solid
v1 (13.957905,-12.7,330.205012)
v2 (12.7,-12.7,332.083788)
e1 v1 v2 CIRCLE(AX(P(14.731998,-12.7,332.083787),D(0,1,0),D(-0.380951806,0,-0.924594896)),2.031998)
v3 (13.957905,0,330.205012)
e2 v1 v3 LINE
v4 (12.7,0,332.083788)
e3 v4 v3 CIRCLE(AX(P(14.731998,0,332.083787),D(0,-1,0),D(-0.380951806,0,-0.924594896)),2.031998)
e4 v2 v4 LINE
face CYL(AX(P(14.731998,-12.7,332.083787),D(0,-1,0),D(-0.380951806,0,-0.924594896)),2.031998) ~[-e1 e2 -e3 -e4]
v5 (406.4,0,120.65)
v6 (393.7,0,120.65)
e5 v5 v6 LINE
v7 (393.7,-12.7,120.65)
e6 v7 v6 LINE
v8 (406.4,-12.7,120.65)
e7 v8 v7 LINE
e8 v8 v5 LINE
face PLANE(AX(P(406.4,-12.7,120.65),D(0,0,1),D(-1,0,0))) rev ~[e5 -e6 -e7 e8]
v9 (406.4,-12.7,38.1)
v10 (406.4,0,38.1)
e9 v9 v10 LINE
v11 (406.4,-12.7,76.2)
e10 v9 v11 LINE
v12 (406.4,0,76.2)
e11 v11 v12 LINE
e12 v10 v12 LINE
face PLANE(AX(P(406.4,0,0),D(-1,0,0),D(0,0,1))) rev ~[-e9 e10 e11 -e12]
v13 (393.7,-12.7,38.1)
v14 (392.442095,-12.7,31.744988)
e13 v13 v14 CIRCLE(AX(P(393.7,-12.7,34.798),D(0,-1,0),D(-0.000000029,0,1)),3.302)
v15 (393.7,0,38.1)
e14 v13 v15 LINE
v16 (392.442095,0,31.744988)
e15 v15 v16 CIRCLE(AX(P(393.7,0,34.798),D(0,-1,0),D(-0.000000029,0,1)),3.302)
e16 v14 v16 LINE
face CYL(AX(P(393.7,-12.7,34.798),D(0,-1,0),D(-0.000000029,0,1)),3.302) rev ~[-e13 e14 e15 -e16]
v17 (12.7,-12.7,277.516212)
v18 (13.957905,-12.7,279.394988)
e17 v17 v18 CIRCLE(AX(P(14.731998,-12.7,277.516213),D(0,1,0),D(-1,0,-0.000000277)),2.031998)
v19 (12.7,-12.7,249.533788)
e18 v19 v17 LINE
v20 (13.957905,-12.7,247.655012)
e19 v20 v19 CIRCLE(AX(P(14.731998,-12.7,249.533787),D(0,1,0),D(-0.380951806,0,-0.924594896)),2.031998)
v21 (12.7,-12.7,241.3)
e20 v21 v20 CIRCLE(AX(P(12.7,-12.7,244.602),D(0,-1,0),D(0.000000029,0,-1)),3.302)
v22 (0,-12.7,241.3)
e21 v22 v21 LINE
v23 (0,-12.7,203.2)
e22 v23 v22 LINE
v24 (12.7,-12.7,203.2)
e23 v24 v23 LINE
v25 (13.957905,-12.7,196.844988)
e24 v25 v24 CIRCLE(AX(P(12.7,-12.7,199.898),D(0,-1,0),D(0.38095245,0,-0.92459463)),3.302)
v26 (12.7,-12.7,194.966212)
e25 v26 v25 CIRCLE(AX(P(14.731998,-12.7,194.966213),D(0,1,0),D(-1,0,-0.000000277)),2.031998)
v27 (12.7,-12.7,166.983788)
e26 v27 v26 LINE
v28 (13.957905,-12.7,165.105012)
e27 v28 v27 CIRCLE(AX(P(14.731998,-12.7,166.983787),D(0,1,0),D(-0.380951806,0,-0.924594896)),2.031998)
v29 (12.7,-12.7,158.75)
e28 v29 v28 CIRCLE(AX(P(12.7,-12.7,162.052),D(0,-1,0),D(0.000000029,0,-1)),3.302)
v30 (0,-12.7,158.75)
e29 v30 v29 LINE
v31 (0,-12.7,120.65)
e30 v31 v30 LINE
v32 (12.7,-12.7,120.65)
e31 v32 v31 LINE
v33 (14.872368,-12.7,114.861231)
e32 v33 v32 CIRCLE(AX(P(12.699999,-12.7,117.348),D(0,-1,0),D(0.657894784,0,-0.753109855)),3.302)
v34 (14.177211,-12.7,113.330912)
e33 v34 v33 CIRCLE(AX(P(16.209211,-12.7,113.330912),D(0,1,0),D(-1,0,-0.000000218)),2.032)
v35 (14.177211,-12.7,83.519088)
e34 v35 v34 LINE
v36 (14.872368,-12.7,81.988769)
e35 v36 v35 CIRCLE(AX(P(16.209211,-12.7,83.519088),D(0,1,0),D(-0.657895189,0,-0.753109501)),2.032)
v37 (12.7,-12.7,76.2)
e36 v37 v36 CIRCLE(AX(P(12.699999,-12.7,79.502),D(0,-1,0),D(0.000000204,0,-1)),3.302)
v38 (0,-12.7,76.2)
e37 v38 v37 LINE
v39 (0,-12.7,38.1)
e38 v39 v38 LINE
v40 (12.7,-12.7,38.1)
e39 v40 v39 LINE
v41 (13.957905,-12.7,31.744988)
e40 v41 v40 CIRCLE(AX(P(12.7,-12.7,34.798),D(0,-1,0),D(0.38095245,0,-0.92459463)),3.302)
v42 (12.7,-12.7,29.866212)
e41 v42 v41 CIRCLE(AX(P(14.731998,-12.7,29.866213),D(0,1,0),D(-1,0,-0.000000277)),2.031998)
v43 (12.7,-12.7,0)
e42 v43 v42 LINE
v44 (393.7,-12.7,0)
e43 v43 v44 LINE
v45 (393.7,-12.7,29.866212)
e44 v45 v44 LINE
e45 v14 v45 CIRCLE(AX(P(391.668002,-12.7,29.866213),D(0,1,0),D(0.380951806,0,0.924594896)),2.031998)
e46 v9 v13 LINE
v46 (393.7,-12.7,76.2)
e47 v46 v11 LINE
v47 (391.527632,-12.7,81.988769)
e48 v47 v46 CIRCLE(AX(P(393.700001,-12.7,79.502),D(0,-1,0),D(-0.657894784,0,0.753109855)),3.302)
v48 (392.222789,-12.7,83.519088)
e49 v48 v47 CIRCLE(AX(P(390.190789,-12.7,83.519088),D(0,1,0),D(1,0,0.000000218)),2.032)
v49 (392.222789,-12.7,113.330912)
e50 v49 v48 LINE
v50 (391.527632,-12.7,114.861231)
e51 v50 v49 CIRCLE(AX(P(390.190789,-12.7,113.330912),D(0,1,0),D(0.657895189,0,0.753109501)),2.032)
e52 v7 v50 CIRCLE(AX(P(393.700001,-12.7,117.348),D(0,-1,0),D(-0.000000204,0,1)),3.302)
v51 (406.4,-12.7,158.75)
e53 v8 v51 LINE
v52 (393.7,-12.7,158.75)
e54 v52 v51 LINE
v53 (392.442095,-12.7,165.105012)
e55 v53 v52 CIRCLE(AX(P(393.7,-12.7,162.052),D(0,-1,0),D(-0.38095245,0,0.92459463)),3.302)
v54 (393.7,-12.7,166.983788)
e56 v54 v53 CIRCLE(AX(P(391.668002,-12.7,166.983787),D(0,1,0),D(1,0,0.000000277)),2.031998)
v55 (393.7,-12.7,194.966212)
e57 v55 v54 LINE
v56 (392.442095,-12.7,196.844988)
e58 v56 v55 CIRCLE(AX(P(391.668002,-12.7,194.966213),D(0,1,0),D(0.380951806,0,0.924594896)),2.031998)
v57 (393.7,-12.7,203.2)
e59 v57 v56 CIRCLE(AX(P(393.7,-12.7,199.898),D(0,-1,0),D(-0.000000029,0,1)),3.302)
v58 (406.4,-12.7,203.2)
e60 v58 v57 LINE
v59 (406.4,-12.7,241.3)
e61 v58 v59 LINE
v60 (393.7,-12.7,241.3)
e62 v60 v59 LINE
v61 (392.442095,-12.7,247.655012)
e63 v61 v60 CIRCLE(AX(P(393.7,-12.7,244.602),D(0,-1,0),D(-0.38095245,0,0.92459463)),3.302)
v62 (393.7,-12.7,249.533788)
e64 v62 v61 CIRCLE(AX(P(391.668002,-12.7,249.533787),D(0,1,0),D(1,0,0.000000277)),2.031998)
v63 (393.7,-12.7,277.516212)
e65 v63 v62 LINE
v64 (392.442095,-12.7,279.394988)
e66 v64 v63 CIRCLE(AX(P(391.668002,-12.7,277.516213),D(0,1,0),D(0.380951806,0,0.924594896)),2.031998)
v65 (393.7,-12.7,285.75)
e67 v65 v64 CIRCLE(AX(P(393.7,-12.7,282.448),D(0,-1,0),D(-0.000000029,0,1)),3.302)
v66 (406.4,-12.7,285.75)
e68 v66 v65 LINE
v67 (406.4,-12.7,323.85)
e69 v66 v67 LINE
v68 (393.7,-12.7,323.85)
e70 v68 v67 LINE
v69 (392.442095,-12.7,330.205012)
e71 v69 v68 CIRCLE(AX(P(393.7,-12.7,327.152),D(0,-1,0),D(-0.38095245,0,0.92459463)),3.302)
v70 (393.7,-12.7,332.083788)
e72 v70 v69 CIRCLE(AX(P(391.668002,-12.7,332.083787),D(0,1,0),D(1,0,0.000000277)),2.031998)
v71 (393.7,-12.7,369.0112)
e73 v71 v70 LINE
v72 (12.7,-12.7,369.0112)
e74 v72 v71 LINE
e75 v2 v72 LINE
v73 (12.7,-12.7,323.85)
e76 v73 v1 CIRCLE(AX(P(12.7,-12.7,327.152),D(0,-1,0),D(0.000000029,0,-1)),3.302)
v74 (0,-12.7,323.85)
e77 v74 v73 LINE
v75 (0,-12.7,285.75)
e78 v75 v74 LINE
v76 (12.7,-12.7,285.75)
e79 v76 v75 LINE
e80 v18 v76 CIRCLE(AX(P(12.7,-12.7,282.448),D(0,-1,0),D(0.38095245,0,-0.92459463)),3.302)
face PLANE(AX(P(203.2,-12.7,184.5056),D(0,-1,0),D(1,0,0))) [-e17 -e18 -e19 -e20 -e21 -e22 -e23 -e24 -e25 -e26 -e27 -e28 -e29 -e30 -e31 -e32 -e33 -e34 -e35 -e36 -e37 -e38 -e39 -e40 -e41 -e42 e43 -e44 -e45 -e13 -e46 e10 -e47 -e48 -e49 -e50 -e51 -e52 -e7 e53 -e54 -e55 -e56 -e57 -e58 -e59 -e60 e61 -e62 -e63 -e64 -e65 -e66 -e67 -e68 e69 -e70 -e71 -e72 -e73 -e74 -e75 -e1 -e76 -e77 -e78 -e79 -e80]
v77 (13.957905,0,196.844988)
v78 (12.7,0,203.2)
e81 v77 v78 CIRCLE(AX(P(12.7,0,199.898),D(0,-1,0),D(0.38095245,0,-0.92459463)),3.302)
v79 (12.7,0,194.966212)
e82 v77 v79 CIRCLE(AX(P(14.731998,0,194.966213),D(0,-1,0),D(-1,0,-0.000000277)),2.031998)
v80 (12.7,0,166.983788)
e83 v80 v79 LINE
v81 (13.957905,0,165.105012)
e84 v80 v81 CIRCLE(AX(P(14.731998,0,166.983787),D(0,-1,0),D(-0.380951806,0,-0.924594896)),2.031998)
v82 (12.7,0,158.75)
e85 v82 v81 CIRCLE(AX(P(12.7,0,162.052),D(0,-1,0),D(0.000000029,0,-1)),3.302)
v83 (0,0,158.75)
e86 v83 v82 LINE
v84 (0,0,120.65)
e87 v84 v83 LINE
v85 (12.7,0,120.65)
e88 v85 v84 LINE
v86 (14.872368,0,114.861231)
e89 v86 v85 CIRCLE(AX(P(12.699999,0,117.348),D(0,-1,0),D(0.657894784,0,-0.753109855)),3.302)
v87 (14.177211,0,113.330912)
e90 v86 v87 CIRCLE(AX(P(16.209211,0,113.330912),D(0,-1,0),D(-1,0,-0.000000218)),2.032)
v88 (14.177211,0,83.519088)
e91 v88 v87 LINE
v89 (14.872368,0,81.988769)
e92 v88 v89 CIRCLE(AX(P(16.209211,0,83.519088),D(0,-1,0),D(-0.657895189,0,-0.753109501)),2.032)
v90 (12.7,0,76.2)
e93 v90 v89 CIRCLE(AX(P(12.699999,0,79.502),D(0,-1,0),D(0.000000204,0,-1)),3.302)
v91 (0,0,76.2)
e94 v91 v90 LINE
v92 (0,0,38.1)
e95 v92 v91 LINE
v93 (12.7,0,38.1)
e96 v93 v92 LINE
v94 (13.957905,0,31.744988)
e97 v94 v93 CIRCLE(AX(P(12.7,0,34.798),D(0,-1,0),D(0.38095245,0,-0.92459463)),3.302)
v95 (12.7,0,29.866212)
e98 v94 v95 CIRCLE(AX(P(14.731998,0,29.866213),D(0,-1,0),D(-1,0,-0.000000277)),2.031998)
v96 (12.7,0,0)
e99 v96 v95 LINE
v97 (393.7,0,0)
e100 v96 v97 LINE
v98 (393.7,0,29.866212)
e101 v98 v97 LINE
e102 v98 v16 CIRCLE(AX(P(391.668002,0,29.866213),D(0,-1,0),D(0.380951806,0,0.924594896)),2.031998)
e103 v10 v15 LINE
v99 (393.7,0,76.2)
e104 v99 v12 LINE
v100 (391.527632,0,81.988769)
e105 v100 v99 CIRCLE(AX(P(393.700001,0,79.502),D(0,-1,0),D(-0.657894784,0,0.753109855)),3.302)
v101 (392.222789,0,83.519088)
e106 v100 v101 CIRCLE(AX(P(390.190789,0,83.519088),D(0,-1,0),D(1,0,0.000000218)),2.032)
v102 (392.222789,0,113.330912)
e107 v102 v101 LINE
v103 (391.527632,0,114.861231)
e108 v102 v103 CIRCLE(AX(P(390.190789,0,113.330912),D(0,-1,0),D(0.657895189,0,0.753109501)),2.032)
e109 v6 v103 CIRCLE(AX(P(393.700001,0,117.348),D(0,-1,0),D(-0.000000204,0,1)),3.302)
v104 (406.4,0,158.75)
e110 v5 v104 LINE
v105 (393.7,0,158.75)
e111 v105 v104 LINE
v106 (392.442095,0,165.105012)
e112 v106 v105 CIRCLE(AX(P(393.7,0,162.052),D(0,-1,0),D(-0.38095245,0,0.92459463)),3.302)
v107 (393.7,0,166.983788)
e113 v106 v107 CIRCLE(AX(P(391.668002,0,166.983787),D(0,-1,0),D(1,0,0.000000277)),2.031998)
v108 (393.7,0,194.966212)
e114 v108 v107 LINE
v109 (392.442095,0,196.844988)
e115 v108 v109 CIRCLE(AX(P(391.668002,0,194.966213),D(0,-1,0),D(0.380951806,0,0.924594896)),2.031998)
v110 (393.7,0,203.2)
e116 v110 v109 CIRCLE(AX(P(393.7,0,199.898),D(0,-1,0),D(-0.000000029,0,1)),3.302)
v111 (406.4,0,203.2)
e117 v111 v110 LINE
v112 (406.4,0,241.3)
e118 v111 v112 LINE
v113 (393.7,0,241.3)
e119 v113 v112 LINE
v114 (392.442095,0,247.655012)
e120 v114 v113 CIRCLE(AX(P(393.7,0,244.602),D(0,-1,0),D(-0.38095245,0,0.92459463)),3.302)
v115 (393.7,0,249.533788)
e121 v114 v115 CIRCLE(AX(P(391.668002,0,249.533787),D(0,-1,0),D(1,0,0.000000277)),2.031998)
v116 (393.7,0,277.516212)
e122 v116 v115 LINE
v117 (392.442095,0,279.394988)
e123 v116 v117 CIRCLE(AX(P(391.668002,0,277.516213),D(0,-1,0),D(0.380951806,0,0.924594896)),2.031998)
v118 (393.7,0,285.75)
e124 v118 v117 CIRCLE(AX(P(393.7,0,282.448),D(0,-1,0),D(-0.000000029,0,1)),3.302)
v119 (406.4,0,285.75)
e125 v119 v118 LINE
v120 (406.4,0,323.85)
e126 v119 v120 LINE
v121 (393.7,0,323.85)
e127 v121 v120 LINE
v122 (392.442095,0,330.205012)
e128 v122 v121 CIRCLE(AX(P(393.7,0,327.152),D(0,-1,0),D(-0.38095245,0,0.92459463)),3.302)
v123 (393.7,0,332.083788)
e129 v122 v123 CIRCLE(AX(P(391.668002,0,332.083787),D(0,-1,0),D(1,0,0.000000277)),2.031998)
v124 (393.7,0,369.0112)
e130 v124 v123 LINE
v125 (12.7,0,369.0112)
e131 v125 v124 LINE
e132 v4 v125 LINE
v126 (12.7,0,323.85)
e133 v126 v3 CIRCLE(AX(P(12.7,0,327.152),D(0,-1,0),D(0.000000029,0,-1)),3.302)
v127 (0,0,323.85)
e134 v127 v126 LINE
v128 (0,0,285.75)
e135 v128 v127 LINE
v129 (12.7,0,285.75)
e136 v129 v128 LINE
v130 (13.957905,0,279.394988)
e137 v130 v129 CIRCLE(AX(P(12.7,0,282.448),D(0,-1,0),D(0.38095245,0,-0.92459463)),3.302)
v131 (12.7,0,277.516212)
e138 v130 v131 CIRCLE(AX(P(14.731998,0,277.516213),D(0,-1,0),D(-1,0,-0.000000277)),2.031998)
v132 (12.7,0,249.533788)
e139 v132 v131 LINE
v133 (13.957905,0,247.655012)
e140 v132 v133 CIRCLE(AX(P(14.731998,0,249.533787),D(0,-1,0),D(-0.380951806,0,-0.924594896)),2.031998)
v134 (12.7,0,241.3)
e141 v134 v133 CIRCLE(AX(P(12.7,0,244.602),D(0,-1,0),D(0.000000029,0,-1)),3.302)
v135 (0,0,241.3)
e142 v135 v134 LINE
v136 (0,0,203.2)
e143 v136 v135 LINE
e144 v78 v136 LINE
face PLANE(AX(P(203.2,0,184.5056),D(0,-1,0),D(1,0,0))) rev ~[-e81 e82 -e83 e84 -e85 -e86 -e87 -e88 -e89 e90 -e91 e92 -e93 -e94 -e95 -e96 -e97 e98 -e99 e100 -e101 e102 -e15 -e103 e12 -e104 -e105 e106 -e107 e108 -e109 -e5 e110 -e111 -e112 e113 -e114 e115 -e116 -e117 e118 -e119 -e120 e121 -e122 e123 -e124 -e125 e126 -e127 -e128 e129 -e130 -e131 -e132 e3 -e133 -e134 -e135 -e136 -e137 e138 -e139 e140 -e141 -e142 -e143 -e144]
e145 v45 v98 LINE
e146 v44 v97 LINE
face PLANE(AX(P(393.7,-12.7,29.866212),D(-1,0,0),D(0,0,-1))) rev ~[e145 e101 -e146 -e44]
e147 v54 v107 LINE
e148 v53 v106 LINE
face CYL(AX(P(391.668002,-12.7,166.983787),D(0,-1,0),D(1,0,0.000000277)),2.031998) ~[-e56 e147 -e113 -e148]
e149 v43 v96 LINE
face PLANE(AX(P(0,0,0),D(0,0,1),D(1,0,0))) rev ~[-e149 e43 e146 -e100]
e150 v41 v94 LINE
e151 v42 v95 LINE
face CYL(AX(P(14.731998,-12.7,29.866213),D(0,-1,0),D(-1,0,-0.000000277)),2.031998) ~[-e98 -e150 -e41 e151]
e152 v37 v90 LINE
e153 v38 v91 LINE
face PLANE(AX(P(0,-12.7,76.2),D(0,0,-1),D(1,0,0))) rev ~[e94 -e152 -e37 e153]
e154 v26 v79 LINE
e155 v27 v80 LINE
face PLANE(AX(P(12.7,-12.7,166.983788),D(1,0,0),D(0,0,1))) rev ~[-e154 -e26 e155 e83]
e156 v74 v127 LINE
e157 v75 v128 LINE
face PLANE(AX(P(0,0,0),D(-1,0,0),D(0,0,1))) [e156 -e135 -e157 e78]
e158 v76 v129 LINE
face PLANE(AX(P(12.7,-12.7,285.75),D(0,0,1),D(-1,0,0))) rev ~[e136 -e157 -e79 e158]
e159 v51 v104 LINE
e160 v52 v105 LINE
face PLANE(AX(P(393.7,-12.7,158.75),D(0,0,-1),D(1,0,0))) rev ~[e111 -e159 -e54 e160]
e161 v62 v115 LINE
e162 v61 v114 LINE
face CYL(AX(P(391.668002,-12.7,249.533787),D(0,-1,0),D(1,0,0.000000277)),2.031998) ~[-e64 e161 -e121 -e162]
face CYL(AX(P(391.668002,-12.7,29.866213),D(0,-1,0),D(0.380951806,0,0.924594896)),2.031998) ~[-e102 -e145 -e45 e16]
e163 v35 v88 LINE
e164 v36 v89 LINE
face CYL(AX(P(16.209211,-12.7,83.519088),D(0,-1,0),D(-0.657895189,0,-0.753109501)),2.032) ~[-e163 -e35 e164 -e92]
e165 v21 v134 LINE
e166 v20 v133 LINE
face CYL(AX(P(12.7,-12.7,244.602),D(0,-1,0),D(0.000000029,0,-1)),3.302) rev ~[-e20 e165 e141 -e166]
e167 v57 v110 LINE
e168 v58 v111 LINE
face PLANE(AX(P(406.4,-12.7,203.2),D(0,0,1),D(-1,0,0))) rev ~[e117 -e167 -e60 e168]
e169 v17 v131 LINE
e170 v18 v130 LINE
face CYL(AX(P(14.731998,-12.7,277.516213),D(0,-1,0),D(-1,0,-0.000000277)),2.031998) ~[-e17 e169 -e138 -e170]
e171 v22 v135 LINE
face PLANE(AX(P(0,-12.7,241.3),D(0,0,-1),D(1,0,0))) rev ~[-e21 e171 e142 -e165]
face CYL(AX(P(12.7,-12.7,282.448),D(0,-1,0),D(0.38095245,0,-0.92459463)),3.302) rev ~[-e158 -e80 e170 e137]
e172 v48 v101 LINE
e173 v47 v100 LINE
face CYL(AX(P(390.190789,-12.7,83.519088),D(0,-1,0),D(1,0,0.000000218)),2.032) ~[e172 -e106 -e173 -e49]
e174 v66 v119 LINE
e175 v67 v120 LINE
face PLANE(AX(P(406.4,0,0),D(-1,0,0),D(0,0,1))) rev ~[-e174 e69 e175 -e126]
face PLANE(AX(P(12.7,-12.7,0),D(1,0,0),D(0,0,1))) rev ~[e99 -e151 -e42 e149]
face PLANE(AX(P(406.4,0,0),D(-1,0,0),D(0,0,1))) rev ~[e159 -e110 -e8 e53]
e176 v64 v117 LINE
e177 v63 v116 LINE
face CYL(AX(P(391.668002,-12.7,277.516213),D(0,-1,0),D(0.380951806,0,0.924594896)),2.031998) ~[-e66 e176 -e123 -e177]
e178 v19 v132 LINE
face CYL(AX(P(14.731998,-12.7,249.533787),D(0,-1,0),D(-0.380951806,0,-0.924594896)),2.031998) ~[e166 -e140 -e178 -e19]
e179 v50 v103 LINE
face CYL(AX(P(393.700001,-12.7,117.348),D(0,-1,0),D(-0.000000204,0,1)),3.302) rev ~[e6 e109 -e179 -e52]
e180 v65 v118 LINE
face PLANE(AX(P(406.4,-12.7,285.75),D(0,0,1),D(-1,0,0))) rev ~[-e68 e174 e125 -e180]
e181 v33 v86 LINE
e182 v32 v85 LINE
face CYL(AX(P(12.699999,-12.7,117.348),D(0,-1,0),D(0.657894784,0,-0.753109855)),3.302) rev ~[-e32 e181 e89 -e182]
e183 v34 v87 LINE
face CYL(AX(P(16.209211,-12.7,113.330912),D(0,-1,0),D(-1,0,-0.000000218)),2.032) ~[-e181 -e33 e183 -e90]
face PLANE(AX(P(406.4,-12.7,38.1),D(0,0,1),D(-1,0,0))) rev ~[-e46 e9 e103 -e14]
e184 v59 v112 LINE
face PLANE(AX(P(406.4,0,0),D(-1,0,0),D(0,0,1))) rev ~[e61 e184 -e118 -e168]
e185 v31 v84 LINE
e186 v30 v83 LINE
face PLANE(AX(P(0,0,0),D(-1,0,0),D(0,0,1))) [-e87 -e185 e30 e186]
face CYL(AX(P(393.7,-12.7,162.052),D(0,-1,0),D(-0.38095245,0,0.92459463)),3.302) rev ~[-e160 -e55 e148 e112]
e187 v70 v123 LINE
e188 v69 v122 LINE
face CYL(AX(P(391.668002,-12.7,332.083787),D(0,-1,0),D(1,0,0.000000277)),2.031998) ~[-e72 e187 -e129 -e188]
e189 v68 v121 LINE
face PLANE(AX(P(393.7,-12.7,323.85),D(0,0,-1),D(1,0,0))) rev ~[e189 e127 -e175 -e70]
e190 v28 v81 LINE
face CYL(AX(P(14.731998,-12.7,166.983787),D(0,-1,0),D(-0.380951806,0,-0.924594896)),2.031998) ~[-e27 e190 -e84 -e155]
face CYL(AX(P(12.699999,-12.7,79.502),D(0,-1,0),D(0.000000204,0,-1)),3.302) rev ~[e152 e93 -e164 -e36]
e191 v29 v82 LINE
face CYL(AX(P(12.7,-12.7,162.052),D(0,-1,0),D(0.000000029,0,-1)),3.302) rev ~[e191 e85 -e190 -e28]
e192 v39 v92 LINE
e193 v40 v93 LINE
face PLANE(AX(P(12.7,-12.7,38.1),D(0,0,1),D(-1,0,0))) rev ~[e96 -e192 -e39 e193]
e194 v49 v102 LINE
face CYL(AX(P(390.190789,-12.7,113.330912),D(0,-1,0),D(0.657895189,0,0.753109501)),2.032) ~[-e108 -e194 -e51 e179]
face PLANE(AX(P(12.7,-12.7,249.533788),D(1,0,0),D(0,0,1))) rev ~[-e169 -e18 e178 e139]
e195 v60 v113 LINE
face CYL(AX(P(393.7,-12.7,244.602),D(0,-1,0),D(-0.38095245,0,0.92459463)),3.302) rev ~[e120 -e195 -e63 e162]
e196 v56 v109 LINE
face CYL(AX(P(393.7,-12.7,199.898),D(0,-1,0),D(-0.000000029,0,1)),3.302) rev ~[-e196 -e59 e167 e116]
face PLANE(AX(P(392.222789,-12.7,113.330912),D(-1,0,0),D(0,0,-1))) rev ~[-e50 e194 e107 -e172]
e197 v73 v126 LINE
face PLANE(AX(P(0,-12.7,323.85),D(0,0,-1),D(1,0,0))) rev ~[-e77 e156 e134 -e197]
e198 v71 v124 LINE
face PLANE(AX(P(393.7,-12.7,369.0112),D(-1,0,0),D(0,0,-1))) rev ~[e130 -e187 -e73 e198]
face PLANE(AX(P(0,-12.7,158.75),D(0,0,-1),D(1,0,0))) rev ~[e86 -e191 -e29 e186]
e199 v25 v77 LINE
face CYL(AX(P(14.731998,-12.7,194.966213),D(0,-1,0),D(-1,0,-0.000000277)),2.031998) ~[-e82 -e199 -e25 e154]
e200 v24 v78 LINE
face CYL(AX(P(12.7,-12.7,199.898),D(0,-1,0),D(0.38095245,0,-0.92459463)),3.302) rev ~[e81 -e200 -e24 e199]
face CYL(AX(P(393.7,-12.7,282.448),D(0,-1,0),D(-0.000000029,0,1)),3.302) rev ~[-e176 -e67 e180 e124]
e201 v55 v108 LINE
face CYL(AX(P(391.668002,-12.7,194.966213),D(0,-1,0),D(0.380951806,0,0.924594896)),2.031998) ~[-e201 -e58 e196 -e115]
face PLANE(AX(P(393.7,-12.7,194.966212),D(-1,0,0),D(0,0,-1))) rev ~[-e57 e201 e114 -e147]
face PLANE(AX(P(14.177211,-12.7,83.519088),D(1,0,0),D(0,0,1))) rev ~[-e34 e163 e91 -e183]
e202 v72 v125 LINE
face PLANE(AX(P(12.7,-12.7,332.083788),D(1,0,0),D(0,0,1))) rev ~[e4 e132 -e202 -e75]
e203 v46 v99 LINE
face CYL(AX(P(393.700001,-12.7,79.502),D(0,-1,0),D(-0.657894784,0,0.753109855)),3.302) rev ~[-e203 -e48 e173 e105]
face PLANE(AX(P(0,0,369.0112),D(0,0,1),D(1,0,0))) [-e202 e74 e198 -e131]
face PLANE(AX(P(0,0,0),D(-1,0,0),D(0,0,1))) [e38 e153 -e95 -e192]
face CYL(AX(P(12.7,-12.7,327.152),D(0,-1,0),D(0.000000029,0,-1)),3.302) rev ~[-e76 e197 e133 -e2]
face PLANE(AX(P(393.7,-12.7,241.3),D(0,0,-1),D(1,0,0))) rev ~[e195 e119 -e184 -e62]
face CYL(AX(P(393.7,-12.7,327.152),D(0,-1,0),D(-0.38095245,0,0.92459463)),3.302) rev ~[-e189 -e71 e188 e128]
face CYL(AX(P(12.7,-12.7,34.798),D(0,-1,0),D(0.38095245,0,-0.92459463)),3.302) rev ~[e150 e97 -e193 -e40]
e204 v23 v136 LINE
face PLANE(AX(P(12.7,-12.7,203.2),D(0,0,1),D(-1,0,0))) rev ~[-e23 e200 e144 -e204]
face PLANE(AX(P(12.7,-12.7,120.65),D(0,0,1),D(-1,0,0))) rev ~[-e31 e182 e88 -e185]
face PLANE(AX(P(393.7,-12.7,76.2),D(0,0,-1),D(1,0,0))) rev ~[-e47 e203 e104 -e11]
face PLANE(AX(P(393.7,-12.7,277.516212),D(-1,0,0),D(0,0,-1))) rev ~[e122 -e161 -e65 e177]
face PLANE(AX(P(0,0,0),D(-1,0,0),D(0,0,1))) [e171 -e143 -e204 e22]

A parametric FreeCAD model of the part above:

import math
import FreeCAD as App
import Part
import Sketcher
Q = App.Units.Quantity

doc = App.newDocument("Part")
params = doc.addObject("Spreadsheet::Sheet", "Params")
for row, (alias, value) in enumerate([
    ("sketch1_width", "16 in"),
    ("sketch1_height", "14.528 in"),
    ("pad1_length", "0.5 in"),
    ("sketch2_radius", "0.0799999 in"),
    ("sketch2_radius2", "0.13 in"),
    ("sketch2_width", "0.5 in"),
    ("sketch2_height", "1.5 in"),
    ("sketch2_height2", "1.75 in"),
    ("pocket1_length", "1 in"),
], start=1):
    params.set(f"A{row}", alias)
    params.set(f"B{row}", "=" + value)
    params.setAlias(f"B{row}", alias)

body = doc.addObject("PartDesign::Body", "Body")

sketch1 = body.newObject("Sketcher::SketchObject", "Sketch")
sketch1.AttachmentSupport = (doc.getObject("XZ_Plane"), [""])
sketch1.MapMode = "FlatFace"
sketch1.addGeometry(Part.LineSegment(App.Vector(0, 369, 0), App.Vector(0, 0, 0)), False)
sketch1.addGeometry(Part.LineSegment(App.Vector(0, 0, 0), App.Vector(406, 0, 0)), False)
sketch1.addGeometry(Part.LineSegment(App.Vector(406, 0, 0), App.Vector(406, 369, 0)), False)
sketch1.addGeometry(Part.LineSegment(App.Vector(406, 369, 0), App.Vector(0, 369, 0)), False)
sketch1.addConstraint(Sketcher.Constraint("Coincident", 0, 2, 1, 1))
sketch1.addConstraint(Sketcher.Constraint("Coincident", 1, 2, 2, 1))
sketch1.addConstraint(Sketcher.Constraint("Coincident", 2, 2, 3, 1))
sketch1.addConstraint(Sketcher.Constraint("Coincident", 3, 2, 0, 1))
sketch1.addConstraint(Sketcher.Constraint("Vertical", 0))
sketch1.addConstraint(Sketcher.Constraint("Horizontal", 1))
sketch1.addConstraint(Sketcher.Constraint("Vertical", 2))
sketch1.addConstraint(Sketcher.Constraint("Horizontal", 3))
sketch1.addConstraint(Sketcher.Constraint("Coincident", 0, 2, -1, 1))
sketch1.addConstraint(Sketcher.Constraint("DistanceX", 1, 1, 1, 2, Q("16 in")))
sketch1.addConstraint(Sketcher.Constraint("DistanceY", 0, 2, 0, 1, Q("14.528 in")))
sketch1.setExpression("Constraints[9]", "Params.sketch1_width")
sketch1.setExpression("Constraints[10]", "Params.sketch1_height")
pad1 = body.newObject("PartDesign::Pad", "Pad")
pad1.Profile = sketch1
pad1.setExpression("Length", "Params.pad1_length")

sketch2 = body.newObject("Sketcher::SketchObject", "Sketch001")
sketch2.AttachmentSupport = (doc.getObject("XZ_Plane"), [""])
sketch2.MapMode = "FlatFace"
sketch2.AttachmentOffset = App.Placement(App.Vector(0, 0, 0.5 * 25.4), App.Rotation())
sketch2.addGeometry(Part.LineSegment(App.Vector(0, 38.1, 0), App.Vector(0, 0, 0)), False)
sketch2.addGeometry(Part.LineSegment(App.Vector(0, 0, 0), App.Vector(12.7, 0, 0)), False)
sketch2.addGeometry(Part.LineSegment(App.Vector(12.7, 0, 0), App.Vector(12.7, 29.9, 0)), False)
sketch2.addGeometry(Part.ArcOfCircle(Part.Circle(App.Vector(14.7, 29.9, 0), App.Vector(0, 0, 1), 2), math.radians(112), math.radians(180)), False)
sketch2.addGeometry(Part.ArcOfCircle(Part.Circle(App.Vector(12.7, 34.8, 0), App.Vector(0, 0, 1), 3.3), math.radians(-68), math.radians(90)), False)
sketch2.addGeometry(Part.LineSegment(App.Vector(12.7, 38.1, 0), App.Vector(0, 38.1, 0)), False)
sketch2.addGeometry(Part.LineSegment(App.Vector(0, 120.7, 0), App.Vector(0, 76.2, 0)), False)
sketch2.addGeometry(Part.LineSegment(App.Vector(0, 76.2, 0), App.Vector(12.7, 76.2, 0)), False)
sketch2.addGeometry(Part.ArcOfCircle(Part.Circle(App.Vector(12.7, 79.5, 0), App.Vector(0, 0, 1), 3.3), math.radians(-90), math.radians(49)), False)
sketch2.addGeometry(Part.ArcOfCircle(Part.Circle(App.Vector(16.2, 83.5, 0), App.Vector(0, 0, 1), 2), math.radians(180), math.radians(229)), False)
sketch2.addGeometry(Part.LineSegment(App.Vector(14.2, 83.5, 0), App.Vector(14.2, 113.3, 0)), False)
sketch2.addGeometry(Part.ArcOfCircle(Part.Circle(App.Vector(16.2, 113.3, 0), App.Vector(0, 0, 1), 2), math.radians(131), math.radians(180)), False)
sketch2.addGeometry(Part.ArcOfCircle(Part.Circle(App.Vector(12.7, 117.3, 0), App.Vector(0, 0, 1), 3.3), math.radians(-49), math.radians(90)), False)
sketch2.addGeometry(Part.LineSegment(App.Vector(12.7, 120.7, 0), App.Vector(0, 120.7, 0)), False)
sketch2.addGeometry(Part.LineSegment(App.Vector(12.7, 203.2, 0), App.Vector(0, 203.2, 0)), False)
sketch2.addGeometry(Part.LineSegment(App.Vector(0, 203.2, 0), App.Vector(0, 158.8, 0)), False)
sketch2.addGeometry(Part.LineSegment(App.Vector(0, 158.8, 0), App.Vector(12.7, 158.8, 0)), False)
sketch2.addGeometry(Part.ArcOfCircle(Part.Circle(App.Vector(12.7, 162.1, 0), App.Vector(0, 0, 1), 3.3), math.radians(-90), math.radians(68)), False)
sketch2.addGeometry(Part.ArcOfCircle(Part.Circle(App.Vector(14.7, 167, 0), App.Vector(0, 0, 1), 2), math.radians(180), math.radians(248)), False)
sketch2.addGeometry(Part.LineSegment(App.Vector(12.7, 167, 0), App.Vector(12.7, 195, 0)), False)
sketch2.addGeometry(Part.ArcOfCircle(Part.Circle(App.Vector(14.7, 195, 0), App.Vector(0, 0, 1), 2), math.radians(112), math.radians(180)), False)
sketch2.addGeometry(Part.ArcOfCircle(Part.Circle(App.Vector(12.7, 199.9, 0), App.Vector(0, 0, 1), 3.3), math.radians(-68), math.radians(90)), False)
sketch2.addGeometry(Part.LineSegment(App.Vector(12.7, 285.8, 0), App.Vector(0, 285.8, 0)), False)
sketch2.addGeometry(Part.LineSegment(App.Vector(0, 285.8, 0), App.Vector(0, 241.3, 0)), False)
sketch2.addGeometry(Part.LineSegment(App.Vector(0, 241.3, 0), App.Vector(12.7, 241.3, 0)), False)
sketch2.addGeometry(Part.ArcOfCircle(Part.Circle(App.Vector(12.7, 244.6, 0), App.Vector(0, 0, 1), 3.3), math.radians(-90), math.radians(68)), False)
sketch2.addGeometry(Part.ArcOfCircle(Part.Circle(App.Vector(14.7, 249.5, 0), App.Vector(0, 0, 1), 2), math.radians(180), math.radians(248)), False)
sketch2.addGeometry(Part.LineSegment(App.Vector(12.7, 249.5, 0), App.Vector(12.7, 277.5, 0)), False)
sketch2.addGeometry(Part.ArcOfCircle(Part.Circle(App.Vector(14.7, 277.5, 0), App.Vector(0, 0, 1), 2), math.radians(112), math.radians(180)), False)
sketch2.addGeometry(Part.ArcOfCircle(Part.Circle(App.Vector(12.7, 282.4, 0), App.Vector(0, 0, 1), 3.3), math.radians(-68), math.radians(90)), False)
sketch2.addGeometry(Part.LineSegment(App.Vector(0, 369, 0), App.Vector(0, 323.9, 0)), False)
sketch2.addGeometry(Part.LineSegment(App.Vector(0, 323.9, 0), App.Vector(12.7, 323.9, 0)), False)
sketch2.addGeometry(Part.ArcOfCircle(Part.Circle(App.Vector(12.7, 327.2, 0), App.Vector(0, 0, 1), 3.3), math.radians(-90), math.radians(68)), False)
sketch2.addGeometry(Part.ArcOfCircle(Part.Circle(App.Vector(14.7, 332.1, 0), App.Vector(0, 0, 1), 2), math.radians(180), math.radians(248)), False)
sketch2.addGeometry(Part.LineSegment(App.Vector(12.7, 332.1, 0), App.Vector(12.7, 369, 0)), False)
sketch2.addGeometry(Part.LineSegment(App.Vector(12.7, 369, 0), App.Vector(0, 369, 0)), False)
sketch2.addGeometry(Part.LineSegment(App.Vector(393.7, 277.5, 0), App.Vector(393.7, 249.5, 0)), False)
sketch2.addGeometry(Part.ArcOfCircle(Part.Circle(App.Vector(391.7, 249.5, 0), App.Vector(0, 0, 1), 2), math.radians(-68), math.radians(0)), False)
sketch2.addGeometry(Part.ArcOfCircle(Part.Circle(App.Vector(393.7, 244.6, 0), App.Vector(0, 0, 1), 3.3), math.radians(112), math.radians(270)), False)
sketch2.addGeometry(Part.LineSegment(App.Vector(393.7, 241.3, 0), App.Vector(406.4, 241.3, 0)), False)
sketch2.addGeometry(Part.LineSegment(App.Vector(406.4, 241.3, 0), App.Vector(406.4, 285.8, 0)), False)
sketch2.addGeometry(Part.LineSegment(App.Vector(406.4, 285.8, 0), App.Vector(393.7, 285.8, 0)), False)
sketch2.addGeometry(Part.ArcOfCircle(Part.Circle(App.Vector(393.7, 282.4, 0), App.Vector(0, 0, 1), 3.3), math.radians(90), math.radians(248)), False)
sketch2.addGeometry(Part.ArcOfCircle(Part.Circle(App.Vector(391.7, 277.5, 0), App.Vector(0, 0, 1), 2), math.radians(0), math.radians(68)), False)
sketch2.addGeometry(Part.LineSegment(App.Vector(393.7, 195, 0), App.Vector(393.7, 167, 0)), False)
sketch2.addGeometry(Part.ArcOfCircle(Part.Circle(App.Vector(391.7, 167, 0), App.Vector(0, 0, 1), 2), math.radians(-68), math.radians(0)), False)
sketch2.addGeometry(Part.ArcOfCircle(Part.Circle(App.Vector(393.7, 162.1, 0), App.Vector(0, 0, 1), 3.3), math.radians(112), math.radians(270)), False)
sketch2.addGeometry(Part.LineSegment(App.Vector(393.7, 158.8, 0), App.Vector(406.4, 158.8, 0)), False)
sketch2.addGeometry(Part.LineSegment(App.Vector(406.4, 158.8, 0), App.Vector(406.4, 203.2, 0)), False)
sketch2.addGeometry(Part.LineSegment(App.Vector(406.4, 203.2, 0), App.Vector(393.7, 203.2, 0)), False)
sketch2.addGeometry(Part.ArcOfCircle(Part.Circle(App.Vector(393.7, 199.9, 0), App.Vector(0, 0, 1), 3.3), math.radians(90), math.radians(248)), False)
sketch2.addGeometry(Part.ArcOfCircle(Part.Circle(App.Vector(391.7, 195, 0), App.Vector(0, 0, 1), 2), math.radians(0), math.radians(68)), False)
sketch2.addGeometry(Part.ArcOfCircle(Part.Circle(App.Vector(393.7, 34.8, 0), App.Vector(0, 0, 1), 3.3), math.radians(90), math.radians(248)), False)
sketch2.addGeometry(Part.ArcOfCircle(Part.Circle(App.Vector(391.7, 29.9, 0), App.Vector(0, 0, 1), 2), math.radians(0), math.radians(68)), False)
sketch2.addGeometry(Part.LineSegment(App.Vector(393.7, 29.9, 0), App.Vector(393.7, 0, 0)), False)
sketch2.addGeometry(Part.LineSegment(App.Vector(393.7, 0, 0), App.Vector(406.4, 0, 0)), False)
sketch2.addGeometry(Part.LineSegment(App.Vector(406.4, 0, 0), App.Vector(406.4, 38.1, 0)), False)
sketch2.addGeometry(Part.LineSegment(App.Vector(406.4, 38.1, 0), App.Vector(393.7, 38.1, 0)), False)
sketch2.addGeometry(Part.ArcOfCircle(Part.Circle(App.Vector(393.7, 79.5, 0), App.Vector(0, 0, 1), 3.3), math.radians(131), math.radians(270)), False)
sketch2.addGeometry(Part.LineSegment(App.Vector(393.7, 76.2, 0), App.Vector(406.4, 76.2, 0)), False)
sketch2.addGeometry(Part.LineSegment(App.Vector(406.4, 76.2, 0), App.Vector(406.4, 120.7, 0)), False)
sketch2.addGeometry(Part.LineSegment(App.Vector(406.4, 120.7, 0), App.Vector(393.7, 120.7, 0)), False)
sketch2.addGeometry(Part.ArcOfCircle(Part.Circle(App.Vector(393.7, 117.3, 0), App.Vector(0, 0, 1), 3.3), math.radians(90), math.radians(229)), False)
sketch2.addGeometry(Part.ArcOfCircle(Part.Circle(App.Vector(390.2, 113.3, 0), App.Vector(0, 0, 1), 2), math.radians(0), math.radians(49)), False)
sketch2.addGeometry(Part.LineSegment(App.Vector(392.2, 113.3, 0), App.Vector(392.2, 83.5, 0)), False)
sketch2.addGeometry(Part.ArcOfCircle(Part.Circle(App.Vector(390.2, 83.5, 0), App.Vector(0, 0, 1), 2), math.radians(-49), math.radians(0)), False)
sketch2.addGeometry(Part.ArcOfCircle(Part.Circle(App.Vector(393.7, 327.2, 0), App.Vector(0, 0, 1), 3.3), math.radians(112), math.radians(270)), False)
sketch2.addGeometry(Part.LineSegment(App.Vector(393.7, 323.9, 0), App.Vector(406.4, 323.9, 0)), False)
sketch2.addGeometry(Part.LineSegment(App.Vector(406.4, 323.9, 0), App.Vector(406.4, 369, 0)), False)
sketch2.addGeometry(Part.LineSegment(App.Vector(406.4, 369, 0), App.Vector(393.7, 369, 0)), False)
sketch2.addGeometry(Part.LineSegment(App.Vector(393.7, 369, 0), App.Vector(393.7, 332.1, 0)), False)
sketch2.addGeometry(Part.ArcOfCircle(Part.Circle(App.Vector(391.7, 332.1, 0), App.Vector(0, 0, 1), 2), math.radians(-68), math.radians(0)), False)
sketch2.addConstraint(Sketcher.Constraint("Coincident", 0, 2, 1, 1))
sketch2.addConstraint(Sketcher.Constraint("Coincident", 1, 2, 2, 1))
sketch2.addConstraint(Sketcher.Constraint("Tangent", 2, 2, 3, 2))
sketch2.addConstraint(Sketcher.Constraint("Tangent", 3, 1, 4, 1))
sketch2.addConstraint(Sketcher.Constraint("Tangent", 4, 2, 5, 1))
sketch2.addConstraint(Sketcher.Constraint("Coincident", 5, 2, 0, 1))
sketch2.addConstraint(Sketcher.Constraint("Coincident", 6, 2, 7, 1))
sketch2.addConstraint(Sketcher.Constraint("Tangent", 7, 2, 8, 1))
sketch2.addConstraint(Sketcher.Constraint("Tangent", 8, 2, 9, 2))
sketch2.addConstraint(Sketcher.Constraint("Tangent", 9, 1, 10, 1))
sketch2.addConstraint(Sketcher.Constraint("Tangent", 10, 2, 11, 2))
sketch2.addConstraint(Sketcher.Constraint("Tangent", 11, 1, 12, 1))
sketch2.addConstraint(Sketcher.Constraint("Tangent", 12, 2, 13, 1))
sketch2.addConstraint(Sketcher.Constraint("Coincident", 13, 2, 6, 1))
sketch2.addConstraint(Sketcher.Constraint("Coincident", 14, 2, 15, 1))
sketch2.addConstraint(Sketcher.Constraint("Coincident", 15, 2, 16, 1))
sketch2.addConstraint(Sketcher.Constraint("Tangent", 16, 2, 17, 1))
sketch2.addConstraint(Sketcher.Constraint("Tangent", 17, 2, 18, 2))
sketch2.addConstraint(Sketcher.Constraint("Tangent", 18, 1, 19, 1))
sketch2.addConstraint(Sketcher.Constraint("Tangent", 19, 2, 20, 2))
sketch2.addConstraint(Sketcher.Constraint("Tangent", 20, 1, 21, 1))
sketch2.addConstraint(Sketcher.Constraint("Tangent", 21, 2, 14, 1))
sketch2.addConstraint(Sketcher.Constraint("Coincident", 22, 2, 23, 1))
sketch2.addConstraint(Sketcher.Constraint("Coincident", 23, 2, 24, 1))
sketch2.addConstraint(Sketcher.Constraint("Tangent", 24, 2, 25, 1))
sketch2.addConstraint(Sketcher.Constraint("Tangent", 25, 2, 26, 2))
sketch2.addConstraint(Sketcher.Constraint("Tangent", 26, 1, 27, 1))
sketch2.addConstraint(Sketcher.Constraint("Tangent", 27, 2, 28, 2))
sketch2.addConstraint(Sketcher.Constraint("Tangent", 28, 1, 29, 1))
sketch2.addConstraint(Sketcher.Constraint("Tangent", 29, 2, 22, 1))
sketch2.addConstraint(Sketcher.Constraint("Coincident", 30, 2, 31, 1))
sketch2.addConstraint(Sketcher.Constraint("Tangent", 31, 2, 32, 1))
sketch2.addConstraint(Sketcher.Constraint("Tangent", 32, 2, 33, 2))
sketch2.addConstraint(Sketcher.Constraint("Tangent", 33, 1, 34, 1))
sketch2.addConstraint(Sketcher.Constraint("Coincident", 34, 2, 35, 1))
sketch2.addConstraint(Sketcher.Constraint("Coincident", 35, 2, 30, 1))
sketch2.addConstraint(Sketcher.Constraint("Tangent", 36, 2, 37, 2))
sketch2.addConstraint(Sketcher.Constraint("Tangent", 37, 1, 38, 1))
sketch2.addConstraint(Sketcher.Constraint("Tangent", 38, 2, 39, 1))
sketch2.addConstraint(Sketcher.Constraint("Coincident", 39, 2, 40, 1))
sketch2.addConstraint(Sketcher.Constraint("Coincident", 40, 2, 41, 1))
sketch2.addConstraint(Sketcher.Constraint("Tangent", 41, 2, 42, 1))
sketch2.addConstraint(Sketcher.Constraint("Tangent", 42, 2, 43, 2))
sketch2.addConstraint(Sketcher.Constraint("Tangent", 43, 1, 36, 1))
sketch2.addConstraint(Sketcher.Constraint("Tangent", 44, 2, 45, 2))
sketch2.addConstraint(Sketcher.Constraint("Tangent", 45, 1, 46, 1))
sketch2.addConstraint(Sketcher.Constraint("Tangent", 46, 2, 47, 1))
sketch2.addConstraint(Sketcher.Constraint("Coincident", 47, 2, 48, 1))
sketch2.addConstraint(Sketcher.Constraint("Coincident", 48, 2, 49, 1))
sketch2.addConstraint(Sketcher.Constraint("Tangent", 49, 2, 50, 1))
sketch2.addConstraint(Sketcher.Constraint("Tangent", 50, 2, 51, 2))
sketch2.addConstraint(Sketcher.Constraint("Tangent", 51, 1, 44, 1))
sketch2.addConstraint(Sketcher.Constraint("Tangent", 52, 2, 53, 2))
sketch2.addConstraint(Sketcher.Constraint("Tangent", 53, 1, 54, 1))
sketch2.addConstraint(Sketcher.Constraint("Coincident", 54, 2, 55, 1))
sketch2.addConstraint(Sketcher.Constraint("Coincident", 55, 2, 56, 1))
sketch2.addConstraint(Sketcher.Constraint("Coincident", 56, 2, 57, 1))
sketch2.addConstraint(Sketcher.Constraint("Tangent", 57, 2, 52, 1))
sketch2.addConstraint(Sketcher.Constraint("Tangent", 58, 2, 59, 1))
sketch2.addConstraint(Sketcher.Constraint("Coincident", 59, 2, 60, 1))
sketch2.addConstraint(Sketcher.Constraint("Coincident", 60, 2, 61, 1))
sketch2.addConstraint(Sketcher.Constraint("Tangent", 61, 2, 62, 1))
sketch2.addConstraint(Sketcher.Constraint("Tangent", 62, 2, 63, 2))
sketch2.addConstraint(Sketcher.Constraint("Tangent", 63, 1, 64, 1))
sketch2.addConstraint(Sketcher.Constraint("Tangent", 64, 2, 65, 2))
sketch2.addConstraint(Sketcher.Constraint("Tangent", 65, 1, 58, 1))
sketch2.addConstraint(Sketcher.Constraint("Tangent", 66, 2, 67, 1))
sketch2.addConstraint(Sketcher.Constraint("Coincident", 67, 2, 68, 1))
sketch2.addConstraint(Sketcher.Constraint("Coincident", 68, 2, 69, 1))
sketch2.addConstraint(Sketcher.Constraint("Coincident", 69, 2, 70, 1))
sketch2.addConstraint(Sketcher.Constraint("Tangent", 70, 2, 71, 2))
sketch2.addConstraint(Sketcher.Constraint("Tangent", 71, 1, 66, 1))
sketch2.addConstraint(Sketcher.Constraint("Vertical", 0))
sketch2.addConstraint(Sketcher.Constraint("Horizontal", 1))
sketch2.addConstraint(Sketcher.Constraint("Vertical", 2))
sketch2.addConstraint(Sketcher.Constraint("Horizontal", 5))
sketch2.addConstraint(Sketcher.Constraint("Vertical", 6))
sketch2.addConstraint(Sketcher.Constraint("Horizontal", 7))
sketch2.addConstraint(Sketcher.Constraint("Vertical", 10))
sketch2.addConstraint(Sketcher.Constraint("Horizontal", 13))
sketch2.addConstraint(Sketcher.Constraint("Horizontal", 14))
sketch2.addConstraint(Sketcher.Constraint("Vertical", 15))
sketch2.addConstraint(Sketcher.Constraint("Horizontal", 16))
sketch2.addConstraint(Sketcher.Constraint("Vertical", 19))
sketch2.addConstraint(Sketcher.Constraint("Horizontal", 22))
sketch2.addConstraint(Sketcher.Constraint("Vertical", 23))
sketch2.addConstraint(Sketcher.Constraint("Horizontal", 24))
sketch2.addConstraint(Sketcher.Constraint("Vertical", 27))
sketch2.addConstraint(Sketcher.Constraint("Vertical", 30))
sketch2.addConstraint(Sketcher.Constraint("Horizontal", 31))
sketch2.addConstraint(Sketcher.Constraint("Vertical", 34))
sketch2.addConstraint(Sketcher.Constraint("Horizontal", 35))
sketch2.addConstraint(Sketcher.Constraint("Vertical", 36))
sketch2.addConstraint(Sketcher.Constraint("Horizontal", 39))
sketch2.addConstraint(Sketcher.Constraint("Vertical", 40))
sketch2.addConstraint(Sketcher.Constraint("Horizontal", 41))
sketch2.addConstraint(Sketcher.Constraint("Vertical", 44))
sketch2.addConstraint(Sketcher.Constraint("Horizontal", 47))
sketch2.addConstraint(Sketcher.Constraint("Vertical", 48))
sketch2.addConstraint(Sketcher.Constraint("Horizontal", 49))
sketch2.addConstraint(Sketcher.Constraint("Vertical", 54))
sketch2.addConstraint(Sketcher.Constraint("Horizontal", 55))
sketch2.addConstraint(Sketcher.Constraint("Vertical", 56))
sketch2.addConstraint(Sketcher.Constraint("Horizontal", 57))
sketch2.addConstraint(Sketcher.Constraint("Horizontal", 59))
sketch2.addConstraint(Sketcher.Constraint("Vertical", 60))
sketch2.addConstraint(Sketcher.Constraint("Horizontal", 61))
sketch2.addConstraint(Sketcher.Constraint("Vertical", 64))
sketch2.addConstraint(Sketcher.Constraint("Horizontal", 67))
sketch2.addConstraint(Sketcher.Constraint("Vertical", 68))
sketch2.addConstraint(Sketcher.Constraint("Horizontal", 69))
sketch2.addConstraint(Sketcher.Constraint("Vertical", 70))
sketch2.addConstraint(Sketcher.Constraint("Coincident", 0, 2, -1, 1))
sketch2.addConstraint(Sketcher.Constraint("Equal", 4, 8))
sketch2.addConstraint(Sketcher.Constraint("Equal", 3, 9))
sketch2.addConstraint(Sketcher.Constraint("Equal", 9, 11))
sketch2.addConstraint(Sketcher.Constraint("Equal", 8, 12))
sketch2.addConstraint(Sketcher.Constraint("Equal", 12, 17))
sketch2.addConstraint(Sketcher.Constraint("Equal", 11, 18))
sketch2.addConstraint(Sketcher.Constraint("Equal", 18, 20))
sketch2.addConstraint(Sketcher.Constraint("Equal", 17, 21))
sketch2.addConstraint(Sketcher.Constraint("Equal", 21, 25))
sketch2.addConstraint(Sketcher.Constraint("Equal", 20, 26))
sketch2.addConstraint(Sketcher.Constraint("Equal", 26, 28))
sketch2.addConstraint(Sketcher.Constraint("Equal", 25, 29))
sketch2.addConstraint(Sketcher.Constraint("Equal", 29, 32))
sketch2.addConstraint(Sketcher.Constraint("Equal", 28, 33))
sketch2.addConstraint(Sketcher.Constraint("Equal", 33, 37))
sketch2.addConstraint(Sketcher.Constraint("Equal", 32, 38))
sketch2.addConstraint(Sketcher.Constraint("Equal", 38, 42))
sketch2.addConstraint(Sketcher.Constraint("Equal", 37, 43))
sketch2.addConstraint(Sketcher.Constraint("Equal", 43, 45))
sketch2.addConstraint(Sketcher.Constraint("Equal", 42, 46))
sketch2.addConstraint(Sketcher.Constraint("Equal", 46, 50))
sketch2.addConstraint(Sketcher.Constraint("Equal", 45, 51))
sketch2.addConstraint(Sketcher.Constraint("Equal", 50, 52))
sketch2.addConstraint(Sketcher.Constraint("Equal", 51, 53))
sketch2.addConstraint(Sketcher.Constraint("Equal", 52, 58))
sketch2.addConstraint(Sketcher.Constraint("Equal", 58, 62))
sketch2.addConstraint(Sketcher.Constraint("Equal", 53, 63))
sketch2.addConstraint(Sketcher.Constraint("Equal", 63, 65))
sketch2.addConstraint(Sketcher.Constraint("Equal", 62, 66))
sketch2.addConstraint(Sketcher.Constraint("Equal", 65, 71))
sketch2.addConstraint(Sketcher.Constraint("PointOnObject", 6, 2, -2))
sketch2.addConstraint(Sketcher.Constraint("PointOnObject", 14, 2, -2))
sketch2.addConstraint(Sketcher.Constraint("PointOnObject", 22, 2, -2))
sketch2.addConstraint(Sketcher.Constraint("PointOnObject", 30, 2, -2))
sketch2.addConstraint(Sketcher.Constraint("PointOnObject", 54, 2, -1))
sketch2.addConstraint(Sketcher.Constraint("Horizontal", 26, 3, 37, 3))
sketch2.addConstraint(Sketcher.Constraint("Horizontal", 25, 3, 38, 3))
sketch2.addConstraint(Sketcher.Constraint("Horizontal", 29, 3, 42, 3))
sketch2.addConstraint(Sketcher.Constraint("Horizontal", 28, 3, 43, 3))
sketch2.addConstraint(Sketcher.Constraint("Horizontal", 18, 3, 45, 3))
sketch2.addConstraint(Sketcher.Constraint("Horizontal", 17, 3, 46, 3))
sketch2.addConstraint(Sketcher.Constraint("Horizontal", 21, 3, 50, 3))
sketch2.addConstraint(Sketcher.Constraint("Horizontal", 20, 3, 51, 3))
sketch2.addConstraint(Sketcher.Constraint("Horizontal", 4, 3, 52, 3))
sketch2.addConstraint(Sketcher.Constraint("Horizontal", 3, 3, 53, 3))
sketch2.addConstraint(Sketcher.Constraint("Horizontal", 8, 3, 58, 3))
sketch2.addConstraint(Sketcher.Constraint("Horizontal", 12, 3, 62, 3))
sketch2.addConstraint(Sketcher.Constraint("Horizontal", 11, 3, 63, 3))
sketch2.addConstraint(Sketcher.Constraint("Horizontal", 9, 3, 65, 3))
sketch2.addConstraint(Sketcher.Constraint("Horizontal", 32, 3, 66, 3))
sketch2.addConstraint(Sketcher.Constraint("Horizontal", 33, 3, 71, 3))
sketch2.addConstraint(Sketcher.Constraint("Horizontal", 35, 2, 68, 2))
sketch2.addConstraint(Sketcher.Constraint("Vertical", 4, 3, 8, 3))
sketch2.addConstraint(Sketcher.Constraint("Vertical", 8, 3, 12, 3))
sketch2.addConstraint(Sketcher.Constraint("Vertical", 12, 3, 17, 3))
sketch2.addConstraint(Sketcher.Constraint("Vertical", 3, 3, 18, 3))
sketch2.addConstraint(Sketcher.Constraint("Vertical", 17, 3, 21, 3))
sketch2.addConstraint(Sketcher.Constraint("Vertical", 21, 3, 25, 3))
sketch2.addConstraint(Sketcher.Constraint("Vertical", 20, 3, 26, 3))
sketch2.addConstraint(Sketcher.Constraint("Vertical", 25, 3, 29, 3))
sketch2.addConstraint(Sketcher.Constraint("Vertical", 29, 3, 32, 3))
sketch2.addConstraint(Sketcher.Constraint("Vertical", 28, 3, 33, 3))
sketch2.addConstraint(Sketcher.Constraint("Vertical", 43, 3, 45, 3))
sketch2.addConstraint(Sketcher.Constraint("Vertical", 50, 3, 52, 3))
sketch2.addConstraint(Sketcher.Constraint("Vertical", 52, 3, 58, 3))
sketch2.addConstraint(Sketcher.Constraint("Vertical", 62, 3, 66, 3))
sketch2.addConstraint(Sketcher.Constraint("Vertical", 32, 3, 1, 2))
sketch2.addConstraint(Sketcher.Constraint("Vertical", 40, 2, 47, 2))
sketch2.addConstraint(Sketcher.Constraint("Vertical", 48, 2, 55, 2))
sketch2.addConstraint(Sketcher.Constraint("Vertical", 56, 2, 59, 2))
sketch2.addConstraint(Sketcher.Constraint("Vertical", 60, 2, 67, 2))
sketch2.addConstraint(Sketcher.Constraint("Equal", 35, 39))
sketch2.addConstraint(Sketcher.Constraint("Equal", 6, 15))
sketch2.addConstraint(Sketcher.Constraint("Equal", 15, 23))
sketch2.addConstraint(Sketcher.Constraint("Radius", 3, Q("0.0799999 in")))
sketch2.addConstraint(Sketcher.Constraint("Radius", 4, Q("0.13 in")))
sketch2.addConstraint(Sketcher.Constraint("DistanceX", 1, 1, 1, 2, Q("0.5 in")))
sketch2.addConstraint(Sketcher.Constraint("DistanceY", 0, 2, 0, 1, Q("1.5 in")))
sketch2.addConstraint(Sketcher.Constraint("DistanceY", -1, 1, 6, 2, Q("3 in")))
sketch2.addConstraint(Sketcher.Constraint("DistanceY", -1, 1, 14, 2, Q("8 in")))
sketch2.addConstraint(Sketcher.Constraint("DistanceX", -1, 1, 39, 2, Q("16 in")))
sketch2.addConstraint(Sketcher.Constraint("DistanceY", 6, 2, 6, 1, Q("1.75 in")))
sketch2.addConstraint(Sketcher.Constraint("DistanceY", -1, 1, 23, 2, Q("9.5 in")))
sketch2.addConstraint(Sketcher.Constraint("DistanceY", 30, 2, 30, 1, Q("1.778 in")))
sketch2.addConstraint(Sketcher.Constraint("DistanceY", -1, 1, 32, 3, Q("12.88 in")))
sketch2.addConstraint(Sketcher.Constraint("DistanceY", 10, 1, 10, 2, Q("29.811824 mm")))
sketch2.setExpression("Constraints[187]", "Params.sketch2_radius")
sketch2.setExpression("Constraints[188]", "Params.sketch2_radius2")
sketch2.setExpression("Constraints[189]", "Params.sketch2_width")
sketch2.setExpression("Constraints[190]", "Params.sketch2_height")
sketch2.setExpression("Constraints[194]", "Params.sketch2_height2")
pocket1 = body.newObject("PartDesign::Pocket", "Pocket")
pocket1.Profile = sketch2
pocket1.setExpression("Length", "Params.pocket1_length")

doc.recompute()
